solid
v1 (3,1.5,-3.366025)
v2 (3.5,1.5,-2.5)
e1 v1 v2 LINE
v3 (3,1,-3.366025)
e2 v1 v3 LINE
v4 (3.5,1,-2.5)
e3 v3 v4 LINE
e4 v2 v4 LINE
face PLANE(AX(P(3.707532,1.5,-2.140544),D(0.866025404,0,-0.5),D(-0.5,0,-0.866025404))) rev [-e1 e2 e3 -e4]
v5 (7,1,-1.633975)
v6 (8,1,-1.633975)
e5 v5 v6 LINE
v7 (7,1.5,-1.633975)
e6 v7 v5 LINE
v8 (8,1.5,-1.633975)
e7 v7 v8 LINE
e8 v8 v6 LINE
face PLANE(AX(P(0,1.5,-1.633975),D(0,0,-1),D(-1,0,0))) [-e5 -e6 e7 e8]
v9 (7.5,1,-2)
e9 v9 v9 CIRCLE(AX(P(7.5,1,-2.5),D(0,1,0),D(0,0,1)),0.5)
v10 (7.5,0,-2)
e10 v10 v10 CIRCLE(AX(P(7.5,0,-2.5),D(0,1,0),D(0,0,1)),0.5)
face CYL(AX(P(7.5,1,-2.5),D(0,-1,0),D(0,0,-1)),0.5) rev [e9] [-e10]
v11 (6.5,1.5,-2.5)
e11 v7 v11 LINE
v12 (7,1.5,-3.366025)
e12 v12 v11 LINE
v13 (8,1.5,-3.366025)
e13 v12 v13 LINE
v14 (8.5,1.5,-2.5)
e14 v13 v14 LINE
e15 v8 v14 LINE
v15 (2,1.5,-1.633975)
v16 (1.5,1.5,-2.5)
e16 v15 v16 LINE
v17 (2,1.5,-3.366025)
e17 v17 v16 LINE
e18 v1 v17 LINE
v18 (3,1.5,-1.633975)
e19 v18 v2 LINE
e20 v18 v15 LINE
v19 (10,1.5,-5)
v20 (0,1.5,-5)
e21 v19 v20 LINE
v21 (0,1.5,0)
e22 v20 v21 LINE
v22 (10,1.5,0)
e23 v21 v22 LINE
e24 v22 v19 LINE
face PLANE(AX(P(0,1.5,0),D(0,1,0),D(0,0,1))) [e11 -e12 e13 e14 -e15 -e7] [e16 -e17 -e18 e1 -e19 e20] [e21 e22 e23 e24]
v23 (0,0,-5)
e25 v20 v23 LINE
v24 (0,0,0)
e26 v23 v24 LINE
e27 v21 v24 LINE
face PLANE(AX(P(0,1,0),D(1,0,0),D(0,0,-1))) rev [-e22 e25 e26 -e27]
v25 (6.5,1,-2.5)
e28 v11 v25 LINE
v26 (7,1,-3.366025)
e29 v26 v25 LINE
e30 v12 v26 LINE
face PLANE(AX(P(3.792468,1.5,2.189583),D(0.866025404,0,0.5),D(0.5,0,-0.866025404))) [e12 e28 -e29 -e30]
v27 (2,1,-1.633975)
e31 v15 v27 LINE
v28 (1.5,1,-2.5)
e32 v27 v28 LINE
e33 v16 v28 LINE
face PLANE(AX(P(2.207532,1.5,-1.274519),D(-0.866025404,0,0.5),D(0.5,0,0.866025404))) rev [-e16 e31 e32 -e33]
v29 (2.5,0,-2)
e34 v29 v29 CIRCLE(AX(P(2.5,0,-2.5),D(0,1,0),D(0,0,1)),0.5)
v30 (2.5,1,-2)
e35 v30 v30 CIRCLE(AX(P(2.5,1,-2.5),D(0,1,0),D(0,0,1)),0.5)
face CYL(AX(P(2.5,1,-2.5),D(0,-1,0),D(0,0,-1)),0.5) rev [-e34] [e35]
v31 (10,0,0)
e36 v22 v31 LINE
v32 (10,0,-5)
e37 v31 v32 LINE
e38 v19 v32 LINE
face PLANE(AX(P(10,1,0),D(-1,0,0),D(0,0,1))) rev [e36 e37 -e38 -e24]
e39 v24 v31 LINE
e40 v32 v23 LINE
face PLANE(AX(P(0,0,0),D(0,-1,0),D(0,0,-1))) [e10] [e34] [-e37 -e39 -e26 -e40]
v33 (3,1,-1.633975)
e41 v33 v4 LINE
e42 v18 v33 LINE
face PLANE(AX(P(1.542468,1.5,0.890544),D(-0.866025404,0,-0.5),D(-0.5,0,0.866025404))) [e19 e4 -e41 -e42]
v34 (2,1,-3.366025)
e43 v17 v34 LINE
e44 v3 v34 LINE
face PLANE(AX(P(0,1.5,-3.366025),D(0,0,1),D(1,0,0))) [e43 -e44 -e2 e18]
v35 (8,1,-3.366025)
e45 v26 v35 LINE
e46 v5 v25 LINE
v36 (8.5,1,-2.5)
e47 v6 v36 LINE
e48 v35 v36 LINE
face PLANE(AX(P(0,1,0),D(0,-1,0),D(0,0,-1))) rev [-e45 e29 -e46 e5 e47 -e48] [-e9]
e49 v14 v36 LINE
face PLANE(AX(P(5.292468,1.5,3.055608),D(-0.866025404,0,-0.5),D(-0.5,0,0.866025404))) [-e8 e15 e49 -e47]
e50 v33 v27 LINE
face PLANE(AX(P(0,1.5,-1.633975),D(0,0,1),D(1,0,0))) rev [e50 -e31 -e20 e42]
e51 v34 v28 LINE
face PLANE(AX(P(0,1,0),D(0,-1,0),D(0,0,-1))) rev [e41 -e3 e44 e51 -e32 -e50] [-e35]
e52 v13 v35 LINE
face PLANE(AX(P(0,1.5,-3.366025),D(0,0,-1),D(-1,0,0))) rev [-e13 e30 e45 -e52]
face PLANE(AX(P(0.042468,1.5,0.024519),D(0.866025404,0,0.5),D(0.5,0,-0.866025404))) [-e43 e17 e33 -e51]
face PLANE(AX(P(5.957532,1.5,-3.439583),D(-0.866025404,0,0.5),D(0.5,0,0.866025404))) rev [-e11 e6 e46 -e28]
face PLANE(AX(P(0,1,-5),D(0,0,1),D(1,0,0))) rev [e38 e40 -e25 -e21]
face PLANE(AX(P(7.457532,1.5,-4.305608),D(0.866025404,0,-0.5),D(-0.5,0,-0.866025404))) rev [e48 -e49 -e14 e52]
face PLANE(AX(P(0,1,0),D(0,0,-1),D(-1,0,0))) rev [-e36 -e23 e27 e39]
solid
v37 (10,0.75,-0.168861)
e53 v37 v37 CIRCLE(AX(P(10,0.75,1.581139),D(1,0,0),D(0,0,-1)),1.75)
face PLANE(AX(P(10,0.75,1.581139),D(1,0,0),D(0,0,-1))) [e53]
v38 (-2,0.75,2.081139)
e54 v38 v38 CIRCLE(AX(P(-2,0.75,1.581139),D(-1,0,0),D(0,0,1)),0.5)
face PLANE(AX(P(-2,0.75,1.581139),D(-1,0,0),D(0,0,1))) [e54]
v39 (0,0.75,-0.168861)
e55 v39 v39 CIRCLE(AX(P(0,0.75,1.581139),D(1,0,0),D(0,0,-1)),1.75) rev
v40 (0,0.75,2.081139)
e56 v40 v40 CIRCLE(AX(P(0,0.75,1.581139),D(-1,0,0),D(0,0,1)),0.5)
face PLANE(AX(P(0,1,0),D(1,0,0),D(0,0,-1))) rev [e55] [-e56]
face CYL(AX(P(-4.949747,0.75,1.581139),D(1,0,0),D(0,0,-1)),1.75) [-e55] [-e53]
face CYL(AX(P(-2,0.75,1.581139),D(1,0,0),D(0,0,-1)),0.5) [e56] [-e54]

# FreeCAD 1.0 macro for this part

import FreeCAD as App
import Part
import Sketcher
Q = App.Units.Quantity

doc = App.newDocument("Part")
params = doc.addObject("Spreadsheet::Sheet", "Params")
for row, (alias, value) in enumerate([
    ("sketch1_diameter", "1 mm"),
    ("sketch1_width", "10 mm"),
    ("sketch1_height", "5 mm"),
    ("pad1_length", "1 mm"),
    ("sketch2_width", "10 mm"),
    ("sketch2_width2", "1 mm"),
    ("sketch2_height", "5 mm"),
    ("sketch2_length", "1 mm"),
    ("pad2_length", "0.5 mm"),
    ("sketch3_diameter", "3.5 mm"),
    ("pad3_length", "10 mm"),
    ("sketch4_diameter", "1 mm"),
    ("pad4_length", "2 mm"),
], start=1):
    params.set(f"A{row}", alias)
    params.set(f"B{row}", "=" + value)
    params.setAlias(f"B{row}", alias)

body = doc.addObject("PartDesign::Body", "Body")

sketch1 = body.newObject("Sketcher::SketchObject", "Sketch")
sketch1.AttachmentSupport = (doc.getObject("XZ_Plane"), [""])
sketch1.MapMode = "FlatFace"
sketch1.addGeometry(Part.LineSegment(App.Vector(0, -5, 0), App.Vector(0, 0, 0)), False)
sketch1.addGeometry(Part.LineSegment(App.Vector(0, 0, 0), App.Vector(10, 0, 0)), False)
sketch1.addGeometry(Part.LineSegment(App.Vector(10, 0, 0), App.Vector(10, -5, 0)), False)
sketch1.addGeometry(Part.LineSegment(App.Vector(10, -5, 0), App.Vector(0, -5, 0)), False)
sketch1.addGeometry(Part.Circle(App.Vector(2.5, -2.5, 0), App.Vector(0, 0, 1), 0.5), False)
sketch1.addGeometry(Part.Circle(App.Vector(7.5, -2.5, 0), App.Vector(0, 0, 1), 0.5), False)
sketch1.addConstraint(Sketcher.Constraint("Coincident", 0, 2, 1, 1))
sketch1.addConstraint(Sketcher.Constraint("Coincident", 1, 2, 2, 1))
sketch1.addConstraint(Sketcher.Constraint("Coincident", 2, 2, 3, 1))
sketch1.addConstraint(Sketcher.Constraint("Coincident", 3, 2, 0, 1))
sketch1.addConstraint(Sketcher.Constraint("Vertical", 0))
sketch1.addConstraint(Sketcher.Constraint("Horizontal", 1))
sketch1.addConstraint(Sketcher.Constraint("Vertical", 2))
sketch1.addConstraint(Sketcher.Constraint("Horizontal", 3))
sketch1.addConstraint(Sketcher.Constraint("Coincident", 0, 2, -1, 1))
sketch1.addConstraint(Sketcher.Constraint("Equal", 4, 5))
sketch1.addConstraint(Sketcher.Constraint("Horizontal", 4, 3, 5, 3))
sketch1.addConstraint(Sketcher.Constraint("Diameter", 4, 1.0))
sketch1.addConstraint(Sketcher.Constraint("DistanceX", 1, 1, 1, 2, 10.0))
sketch1.addConstraint(Sketcher.Constraint("DistanceY", 0, 1, 0, 2, 5.0))
sketch1.addConstraint(Sketcher.Constraint("DistanceX", 4, 3, 5, 3, 5.0))
sketch1.addConstraint(Sketcher.Constraint("DistanceX", -1, 1, 4, 3, 2.5))
sketch1.addConstraint(Sketcher.Constraint("DistanceY", 4, 3, -1, 1, 2.5))
sketch1.setExpression("Constraints[11]", "Params.sketch1_diameter")
sketch1.setExpression("Constraints[12]", "Params.sketch1_width")
sketch1.setExpression("Constraints[13]", "Params.sketch1_height")
pad1 = body.newObject("PartDesign::Pad", "Pad")
pad1.Profile = sketch1
pad1.setExpression("Length", "Params.pad1_length")
pad1.Reversed = True

sketch2 = body.newObject("Sketcher::SketchObject", "Sketch001")
sketch2.AttachmentSupport = (doc.getObject("XZ_Plane"), [""])
sketch2.MapMode = "FlatFace"
sketch2.AttachmentOffset = App.Placement(App.Vector(0, 0, -1), App.Rotation())
sketch2.addGeometry(Part.LineSegment(App.Vector(0, -5, 0), App.Vector(0, 0, 0)), False)
sketch2.addGeometry(Part.LineSegment(App.Vector(0, 0, 0), App.Vector(10, 0, 0)), False)
sketch2.addGeometry(Part.LineSegment(App.Vector(10, 0, 0), App.Vector(10, -5, 0)), False)
sketch2.addGeometry(Part.LineSegment(App.Vector(10, -5, 0), App.Vector(0, -5, 0)), False)
sketch2.addGeometry(Part.LineSegment(App.Vector(3.5, -2.5, 0), App.Vector(3, -1.633975, 0)), False)
sketch2.addGeometry(Part.LineSegment(App.Vector(3, -1.633975, 0), App.Vector(2, -1.633975, 0)), False)
sketch2.addGeometry(Part.LineSegment(App.Vector(2, -1.633975, 0), App.Vector(1.5, -2.5, 0)), False)
sketch2.addGeometry(Part.LineSegment(App.Vector(1.5, -2.5, 0), App.Vector(2, -3.366025, 0)), False)
sketch2.addGeometry(Part.LineSegment(App.Vector(2, -3.366025, 0), App.Vector(3, -3.366025, 0)), False)
sketch2.addGeometry(Part.LineSegment(App.Vector(3, -3.366025, 0), App.Vector(3.5, -2.5, 0)), False)
sketch2.addGeometry(Part.LineSegment(App.Vector(6.5, -2.5, 0), App.Vector(7, -3.366025, 0)), False)
sketch2.addGeometry(Part.LineSegment(App.Vector(7, -3.366025, 0), App.Vector(8, -3.366025, 0)), False)
sketch2.addGeometry(Part.LineSegment(App.Vector(8, -3.366025, 0), App.Vector(8.5, -2.5, 0)), False)
sketch2.addGeometry(Part.LineSegment(App.Vector(8.5, -2.5, 0), App.Vector(8, -1.633975, 0)), False)
sketch2.addGeometry(Part.LineSegment(App.Vector(8, -1.633975, 0), App.Vector(7, -1.633975, 0)), False)
sketch2.addGeometry(Part.LineSegment(App.Vector(7, -1.633975, 0), App.Vector(6.5, -2.5, 0)), False)
sketch2.addConstraint(Sketcher.Constraint("Coincident", 0, 2, 1, 1))
sketch2.addConstraint(Sketcher.Constraint("Coincident", 1, 2, 2, 1))
sketch2.addConstraint(Sketcher.Constraint("Coincident", 2, 2, 3, 1))
sketch2.addConstraint(Sketcher.Constraint("Coincident", 3, 2, 0, 1))
sketch2.addConstraint(Sketcher.Constraint("Coincident", 4, 2, 5, 1))
sketch2.addConstraint(Sketcher.Constraint("Coincident", 5, 2, 6, 1))
sketch2.addConstraint(Sketcher.Constraint("Coincident", 6, 2, 7, 1))
sketch2.addConstraint(Sketcher.Constraint("Coincident", 7, 2, 8, 1))
sketch2.addConstraint(Sketcher.Constraint("Coincident", 8, 2, 9, 1))
sketch2.addConstraint(Sketcher.Constraint("Coincident", 9, 2, 4, 1))
sketch2.addConstraint(Sketcher.Constraint("Coincident", 10, 2, 11, 1))
sketch2.addConstraint(Sketcher.Constraint("Coincident", 11, 2, 12, 1))
sketch2.addConstraint(Sketcher.Constraint("Coincident", 12, 2, 13, 1))
sketch2.addConstraint(Sketcher.Constraint("Coincident", 13, 2, 14, 1))
sketch2.addConstraint(Sketcher.Constraint("Coincident", 14, 2, 15, 1))
sketch2.addConstraint(Sketcher.Constraint("Coincident", 15, 2, 10, 1))
sketch2.addConstraint(Sketcher.Constraint("Vertical", 0))
sketch2.addConstraint(Sketcher.Constraint("Horizontal", 1))
sketch2.addConstraint(Sketcher.Constraint("Vertical", 2))
sketch2.addConstraint(Sketcher.Constraint("Horizontal", 3))
sketch2.addConstraint(Sketcher.Constraint("Horizontal", 5))
sketch2.addConstraint(Sketcher.Constraint("Horizontal", 8))
sketch2.addConstraint(Sketcher.Constraint("Horizontal", 11))
sketch2.addConstraint(Sketcher.Constraint("Horizontal", 14))
sketch2.addConstraint(Sketcher.Constraint("Coincident", 0, 2, -1, 1))
sketch2.addConstraint(Sketcher.Constraint("Parallel", 4, 7))
sketch2.addConstraint(Sketcher.Constraint("Parallel", 6, 9))
sketch2.addConstraint(Sketcher.Constraint("Parallel", 7, 10))
sketch2.addConstraint(Sketcher.Constraint("Parallel", 9, 12))
sketch2.addConstraint(Sketcher.Constraint("Parallel", 10, 13))
sketch2.addConstraint(Sketcher.Constraint("Parallel", 12, 15))
sketch2.addConstraint(Sketcher.Constraint("Horizontal", 6, 2, 9, 2))
sketch2.addConstraint(Sketcher.Constraint("Horizontal", 8, 2, 10, 2))
sketch2.addConstraint(Sketcher.Constraint("Horizontal", 9, 2, 12, 2))
sketch2.addConstraint(Sketcher.Constraint("Horizontal", 5, 2, 13, 2))
sketch2.addConstraint(Sketcher.Constraint("Horizontal", 12, 2, 15, 2))
sketch2.addConstraint(Sketcher.Constraint("Vertical", 5, 2, 7, 2))
sketch2.addConstraint(Sketcher.Constraint("Vertical", 4, 2, 8, 2))
sketch2.addConstraint(Sketcher.Constraint("Equal", 8, 11))
sketch2.addConstraint(Sketcher.Constraint("DistanceX", 1, 1, 1, 2, 10.0))
sketch2.addConstraint(Sketcher.Constraint("DistanceX", 5, 2, 5, 1, 1.0))
sketch2.addConstraint(Sketcher.Constraint("DistanceY", 0, 1, 0, 2, 5.0))
sketch2.addConstraint(Sketcher.Constraint("Angle", 4, Q("120 deg")))
sketch2.addConstraint(Sketcher.Constraint("Distance", 4, 1.0))
sketch2.addConstraint(Sketcher.Constraint("DistanceX", -1, 1, 4, 2, 3.0))
sketch2.addConstraint(Sketcher.Constraint("DistanceX", -1, 1, 10, 2, 7.0))
sketch2.addConstraint(Sketcher.Constraint("DistanceY", 6, 2, -1, 1, 2.5))
sketch2.setExpression("Constraints[39]", "Params.sketch2_width")
sketch2.setExpression("Constraints[40]", "Params.sketch2_width2")
sketch2.setExpression("Constraints[41]", "Params.sketch2_height")
sketch2.setExpression("Constraints[43]", "Params.sketch2_length")
pad2 = body.newObject("PartDesign::Pad", "Pad001")
pad2.Profile = sketch2
pad2.setExpression("Length", "Params.pad2_length")
pad2.Reversed = True
body2 = doc.addObject("PartDesign::Body", "Body001")

sketch3 = body2.newObject("Sketcher::SketchObject", "Sketch002")
sketch3.AttachmentSupport = (doc.getObject("YZ_Plane001"), [""])
sketch3.MapMode = "FlatFace"
sketch3.AttachmentOffset = App.Placement(App.Vector(0, 0, 10), App.Rotation())
sketch3.addGeometry(Part.Circle(App.Vector(0.75, 1.581139, 0), App.Vector(0, 0, 1), 1.75), False)
sketch3.addConstraint(Sketcher.Constraint("Diameter", 0, 3.5))
sketch3.addConstraint(Sketcher.Constraint("DistanceX", -1, 1, 0, 3, 0.75))
sketch3.addConstraint(Sketcher.Constraint("DistanceY", -1, 1, 0, 3, 1.581139))
sketch3.setExpression("Constraints[0]", "Params.sketch3_diameter")
pad3 = body2.newObject("PartDesign::Pad", "Pad002")
pad3.Profile = sketch3
pad3.setExpression("Length", "Params.pad3_length")
pad3.Reversed = True

sketch4 = body2.newObject("Sketcher::SketchObject", "Sketch003")
sketch4.AttachmentSupport = (doc.getObject("YZ_Plane001"), [""])
sketch4.MapMode = "FlatFace"
sketch4.addGeometry(Part.Circle(App.Vector(0.75, 1.581139, 0), App.Vector(0, 0, 1), 0.5), False)
sketch4.addConstraint(Sketcher.Constraint("Diameter", 0, 1.0))
sketch4.addConstraint(Sketcher.Constraint("DistanceX", -1, 1, 0, 3, 0.75))
sketch4.addConstraint(Sketcher.Constraint("DistanceY", -1, 1, 0, 3, 1.581139))
sketch4.setExpression("Constraints[0]", "Params.sketch4_diameter")
pad4 = body2.newObject("PartDesign::Pad", "Pad003")
pad4.Profile = sketch4
pad4.setExpression("Length", "Params.pad4_length")
pad4.Reversed = True

doc.recompute()
